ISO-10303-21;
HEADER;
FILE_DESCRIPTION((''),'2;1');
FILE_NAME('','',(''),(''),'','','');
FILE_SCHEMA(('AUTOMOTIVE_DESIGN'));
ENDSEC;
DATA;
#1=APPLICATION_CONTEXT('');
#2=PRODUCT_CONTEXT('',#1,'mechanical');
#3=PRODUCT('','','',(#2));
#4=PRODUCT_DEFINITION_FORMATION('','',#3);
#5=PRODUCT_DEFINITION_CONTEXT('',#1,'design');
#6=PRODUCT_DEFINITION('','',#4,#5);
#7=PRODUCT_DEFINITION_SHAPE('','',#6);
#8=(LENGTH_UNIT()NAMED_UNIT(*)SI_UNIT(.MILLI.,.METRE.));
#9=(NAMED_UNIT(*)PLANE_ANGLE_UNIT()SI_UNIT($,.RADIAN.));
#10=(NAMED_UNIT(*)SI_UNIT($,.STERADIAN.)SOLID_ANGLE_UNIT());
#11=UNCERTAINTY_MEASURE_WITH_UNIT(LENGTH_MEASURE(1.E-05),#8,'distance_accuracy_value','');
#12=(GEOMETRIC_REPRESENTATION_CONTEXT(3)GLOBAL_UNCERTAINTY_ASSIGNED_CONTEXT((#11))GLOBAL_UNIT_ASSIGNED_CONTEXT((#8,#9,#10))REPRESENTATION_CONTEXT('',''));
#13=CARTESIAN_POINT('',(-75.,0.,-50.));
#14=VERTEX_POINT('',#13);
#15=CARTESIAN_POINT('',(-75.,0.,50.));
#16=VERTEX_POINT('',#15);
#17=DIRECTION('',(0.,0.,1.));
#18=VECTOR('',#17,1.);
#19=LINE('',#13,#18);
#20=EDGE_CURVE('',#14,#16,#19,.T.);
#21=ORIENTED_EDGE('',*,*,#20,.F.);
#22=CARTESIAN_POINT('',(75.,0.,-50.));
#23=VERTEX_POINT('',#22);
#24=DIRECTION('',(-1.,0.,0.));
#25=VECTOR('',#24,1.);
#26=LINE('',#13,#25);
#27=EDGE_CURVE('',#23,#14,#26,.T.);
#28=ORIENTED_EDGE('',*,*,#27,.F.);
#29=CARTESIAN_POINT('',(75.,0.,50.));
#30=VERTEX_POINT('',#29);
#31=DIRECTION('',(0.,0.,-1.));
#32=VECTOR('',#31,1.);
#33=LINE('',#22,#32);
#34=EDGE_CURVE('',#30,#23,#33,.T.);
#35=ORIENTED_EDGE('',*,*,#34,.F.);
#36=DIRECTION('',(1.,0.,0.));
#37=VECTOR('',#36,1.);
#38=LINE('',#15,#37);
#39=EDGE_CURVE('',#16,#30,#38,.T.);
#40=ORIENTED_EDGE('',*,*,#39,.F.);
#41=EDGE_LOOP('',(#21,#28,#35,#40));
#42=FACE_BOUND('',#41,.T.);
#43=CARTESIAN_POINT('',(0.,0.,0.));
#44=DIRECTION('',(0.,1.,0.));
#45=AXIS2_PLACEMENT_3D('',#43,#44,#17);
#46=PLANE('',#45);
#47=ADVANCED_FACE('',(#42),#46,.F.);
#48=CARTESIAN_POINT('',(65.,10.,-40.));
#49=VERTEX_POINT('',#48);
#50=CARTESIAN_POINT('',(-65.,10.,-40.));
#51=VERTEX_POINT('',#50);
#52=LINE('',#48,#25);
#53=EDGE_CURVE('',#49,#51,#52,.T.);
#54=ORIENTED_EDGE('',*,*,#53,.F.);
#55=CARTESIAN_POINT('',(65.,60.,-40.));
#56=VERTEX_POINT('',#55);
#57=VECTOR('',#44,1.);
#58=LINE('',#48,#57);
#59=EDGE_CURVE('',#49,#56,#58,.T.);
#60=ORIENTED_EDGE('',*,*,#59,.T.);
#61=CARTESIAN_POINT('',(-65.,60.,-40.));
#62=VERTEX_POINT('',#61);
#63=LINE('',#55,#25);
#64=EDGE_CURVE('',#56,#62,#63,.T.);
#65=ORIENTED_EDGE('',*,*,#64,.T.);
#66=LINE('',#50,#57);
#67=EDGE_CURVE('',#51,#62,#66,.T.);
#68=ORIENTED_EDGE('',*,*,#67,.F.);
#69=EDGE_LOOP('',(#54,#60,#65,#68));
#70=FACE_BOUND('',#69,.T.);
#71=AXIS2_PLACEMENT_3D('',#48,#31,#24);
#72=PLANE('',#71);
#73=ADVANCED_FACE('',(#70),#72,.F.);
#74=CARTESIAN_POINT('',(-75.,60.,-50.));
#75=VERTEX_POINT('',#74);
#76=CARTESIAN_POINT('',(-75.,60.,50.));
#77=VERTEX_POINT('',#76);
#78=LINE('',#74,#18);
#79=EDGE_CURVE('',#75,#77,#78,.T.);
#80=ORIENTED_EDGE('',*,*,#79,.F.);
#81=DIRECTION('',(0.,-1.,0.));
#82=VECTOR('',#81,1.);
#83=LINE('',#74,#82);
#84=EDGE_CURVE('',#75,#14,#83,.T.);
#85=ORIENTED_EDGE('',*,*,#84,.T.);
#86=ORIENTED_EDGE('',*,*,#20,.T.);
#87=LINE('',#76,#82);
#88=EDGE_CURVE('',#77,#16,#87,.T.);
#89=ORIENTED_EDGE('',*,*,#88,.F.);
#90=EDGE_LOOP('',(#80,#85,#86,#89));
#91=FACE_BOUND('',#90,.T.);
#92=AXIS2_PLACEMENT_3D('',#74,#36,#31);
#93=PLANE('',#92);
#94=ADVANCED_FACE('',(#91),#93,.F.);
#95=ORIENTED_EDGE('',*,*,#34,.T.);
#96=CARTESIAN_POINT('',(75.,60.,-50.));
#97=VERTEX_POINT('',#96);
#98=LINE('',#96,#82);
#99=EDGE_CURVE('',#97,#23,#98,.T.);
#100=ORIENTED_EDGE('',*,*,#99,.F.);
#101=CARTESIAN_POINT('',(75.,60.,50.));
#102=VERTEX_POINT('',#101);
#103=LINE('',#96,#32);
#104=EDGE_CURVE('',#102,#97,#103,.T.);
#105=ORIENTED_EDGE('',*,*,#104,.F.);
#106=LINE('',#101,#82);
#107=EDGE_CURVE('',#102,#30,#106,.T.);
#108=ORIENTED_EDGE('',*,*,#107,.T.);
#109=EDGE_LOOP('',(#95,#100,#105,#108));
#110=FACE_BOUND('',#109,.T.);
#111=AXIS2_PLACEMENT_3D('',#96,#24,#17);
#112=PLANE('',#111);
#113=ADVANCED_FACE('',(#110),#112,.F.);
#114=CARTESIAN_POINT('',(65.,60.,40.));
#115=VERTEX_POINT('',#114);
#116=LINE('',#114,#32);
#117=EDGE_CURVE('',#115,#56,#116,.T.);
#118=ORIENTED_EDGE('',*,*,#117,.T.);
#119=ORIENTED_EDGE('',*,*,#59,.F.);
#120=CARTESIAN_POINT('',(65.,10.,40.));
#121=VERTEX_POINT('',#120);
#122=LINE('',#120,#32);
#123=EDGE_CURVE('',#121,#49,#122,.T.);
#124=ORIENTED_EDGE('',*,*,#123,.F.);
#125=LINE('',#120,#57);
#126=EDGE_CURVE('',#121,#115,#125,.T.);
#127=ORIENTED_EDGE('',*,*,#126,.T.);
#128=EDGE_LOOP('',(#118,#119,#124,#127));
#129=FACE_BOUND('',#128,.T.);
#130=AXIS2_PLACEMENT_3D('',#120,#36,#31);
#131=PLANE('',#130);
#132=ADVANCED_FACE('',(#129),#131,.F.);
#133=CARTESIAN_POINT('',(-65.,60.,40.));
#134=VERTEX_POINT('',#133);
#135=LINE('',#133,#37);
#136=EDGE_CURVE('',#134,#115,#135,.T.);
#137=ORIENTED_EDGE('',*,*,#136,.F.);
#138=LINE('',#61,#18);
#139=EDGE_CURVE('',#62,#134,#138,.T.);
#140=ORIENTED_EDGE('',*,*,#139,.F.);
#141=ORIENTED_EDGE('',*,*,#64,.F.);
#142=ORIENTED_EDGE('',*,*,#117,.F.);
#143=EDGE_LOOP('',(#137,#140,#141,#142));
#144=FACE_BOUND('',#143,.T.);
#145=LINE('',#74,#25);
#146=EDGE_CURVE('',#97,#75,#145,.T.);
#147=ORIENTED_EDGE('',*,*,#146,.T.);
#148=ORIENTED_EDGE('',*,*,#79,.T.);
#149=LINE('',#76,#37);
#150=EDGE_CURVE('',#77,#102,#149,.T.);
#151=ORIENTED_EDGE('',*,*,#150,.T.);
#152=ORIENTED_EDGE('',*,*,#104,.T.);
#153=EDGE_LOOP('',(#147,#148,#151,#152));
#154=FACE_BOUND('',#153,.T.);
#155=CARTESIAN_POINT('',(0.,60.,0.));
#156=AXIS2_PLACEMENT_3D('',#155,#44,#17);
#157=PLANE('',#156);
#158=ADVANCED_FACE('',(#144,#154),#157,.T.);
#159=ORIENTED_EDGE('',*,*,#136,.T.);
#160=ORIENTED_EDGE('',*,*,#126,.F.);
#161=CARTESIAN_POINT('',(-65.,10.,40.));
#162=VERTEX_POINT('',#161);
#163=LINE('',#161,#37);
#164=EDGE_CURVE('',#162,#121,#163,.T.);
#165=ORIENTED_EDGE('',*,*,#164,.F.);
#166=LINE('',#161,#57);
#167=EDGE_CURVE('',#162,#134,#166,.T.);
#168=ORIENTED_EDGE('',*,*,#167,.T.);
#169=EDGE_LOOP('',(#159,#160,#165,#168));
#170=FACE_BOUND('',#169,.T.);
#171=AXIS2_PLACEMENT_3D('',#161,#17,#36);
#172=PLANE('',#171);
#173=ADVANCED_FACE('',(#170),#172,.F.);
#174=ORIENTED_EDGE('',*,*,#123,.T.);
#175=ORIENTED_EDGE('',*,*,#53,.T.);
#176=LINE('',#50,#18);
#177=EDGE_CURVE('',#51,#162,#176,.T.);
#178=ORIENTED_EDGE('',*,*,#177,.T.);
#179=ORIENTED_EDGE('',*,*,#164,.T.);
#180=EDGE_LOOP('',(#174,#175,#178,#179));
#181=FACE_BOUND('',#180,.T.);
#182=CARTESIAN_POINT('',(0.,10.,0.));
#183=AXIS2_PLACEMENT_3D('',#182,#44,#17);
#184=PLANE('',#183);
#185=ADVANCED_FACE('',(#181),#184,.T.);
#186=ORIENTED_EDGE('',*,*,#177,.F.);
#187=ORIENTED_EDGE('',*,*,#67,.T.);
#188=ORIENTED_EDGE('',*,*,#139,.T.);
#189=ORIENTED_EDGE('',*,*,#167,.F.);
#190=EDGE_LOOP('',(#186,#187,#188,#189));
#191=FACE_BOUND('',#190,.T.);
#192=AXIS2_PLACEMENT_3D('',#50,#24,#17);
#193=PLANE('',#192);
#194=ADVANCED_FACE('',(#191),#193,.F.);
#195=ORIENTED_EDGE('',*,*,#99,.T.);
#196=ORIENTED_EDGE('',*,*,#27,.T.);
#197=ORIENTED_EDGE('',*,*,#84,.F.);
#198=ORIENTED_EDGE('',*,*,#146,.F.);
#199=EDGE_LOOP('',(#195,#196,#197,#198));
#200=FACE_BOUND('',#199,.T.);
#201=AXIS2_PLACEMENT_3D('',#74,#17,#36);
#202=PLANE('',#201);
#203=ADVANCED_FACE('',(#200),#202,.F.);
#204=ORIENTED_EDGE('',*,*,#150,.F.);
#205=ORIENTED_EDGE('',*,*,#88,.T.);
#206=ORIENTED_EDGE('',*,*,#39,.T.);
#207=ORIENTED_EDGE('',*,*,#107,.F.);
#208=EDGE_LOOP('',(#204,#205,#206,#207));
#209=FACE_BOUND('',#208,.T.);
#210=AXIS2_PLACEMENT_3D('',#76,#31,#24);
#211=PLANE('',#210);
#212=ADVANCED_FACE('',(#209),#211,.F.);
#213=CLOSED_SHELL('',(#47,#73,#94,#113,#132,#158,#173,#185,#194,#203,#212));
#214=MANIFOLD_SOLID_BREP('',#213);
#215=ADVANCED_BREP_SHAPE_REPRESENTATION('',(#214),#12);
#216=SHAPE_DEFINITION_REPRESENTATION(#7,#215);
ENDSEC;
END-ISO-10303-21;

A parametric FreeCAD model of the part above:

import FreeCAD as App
import Part
import Sketcher
Q = App.Units.Quantity

doc = App.newDocument("Part")
body = doc.addObject("PartDesign::Body", "Body")

sketch1 = body.newObject("Sketcher::SketchObject", "Sketch")
sketch1.AttachmentSupport = (doc.getObject("XZ_Plane"), [""])
sketch1.MapMode = "FlatFace"
sketch1.addGeometry(Part.LineSegment(App.Vector(-75, -50, 0), App.Vector(-75, 50, 0)), False)
sketch1.addGeometry(Part.LineSegment(App.Vector(-75, 50, 0), App.Vector(75, 50, 0)), False)
sketch1.addGeometry(Part.LineSegment(App.Vector(75, 50, 0), App.Vector(75, -50, 0)), False)
sketch1.addGeometry(Part.LineSegment(App.Vector(75, -50, 0), App.Vector(-75, -50, 0)), False)
sketch1.addConstraint(Sketcher.Constraint("Coincident", 0, 2, 1, 1))
sketch1.addConstraint(Sketcher.Constraint("Coincident", 1, 2, 2, 1))
sketch1.addConstraint(Sketcher.Constraint("Coincident", 2, 2, 3, 1))
sketch1.addConstraint(Sketcher.Constraint("Coincident", 3, 2, 0, 1))
sketch1.addConstraint(Sketcher.Constraint("Vertical", 0))
sketch1.addConstraint(Sketcher.Constraint("Horizontal", 1))
sketch1.addConstraint(Sketcher.Constraint("Vertical", 2))
sketch1.addConstraint(Sketcher.Constraint("Horizontal", 3))
sketch1.addConstraint(Sketcher.Constraint("Symmetric", 0, 2, 2, 2, -1, 1))
sketch1.addConstraint(Sketcher.Constraint("DistanceX", 1, 1, 1, 2, Q("150 mm")))
sketch1.addConstraint(Sketcher.Constraint("DistanceY", 0, 1, 0, 2, Q("100 mm")))
pad1 = body.newObject("PartDesign::Pad", "Pad")
pad1.Profile = sketch1
pad1.Length = 60
pad1.Reversed = True

sketch2 = body.newObject("Sketcher::SketchObject", "Sketch001")
sketch2.AttachmentSupport = (doc.getObject("XZ_Plane"), [""])
sketch2.MapMode = "FlatFace"
sketch2.AttachmentOffset = App.Placement(App.Vector(0, 0, -60), App.Rotation())
sketch2.addGeometry(Part.LineSegment(App.Vector(-65, -40, 0), App.Vector(-65, 40, 0)), False)
sketch2.addGeometry(Part.LineSegment(App.Vector(-65, 40, 0), App.Vector(65, 40, 0)), False)
sketch2.addGeometry(Part.LineSegment(App.Vector(65, 40, 0), App.Vector(65, -40, 0)), False)
sketch2.addGeometry(Part.LineSegment(App.Vector(65, -40, 0), App.Vector(-65, -40, 0)), False)
sketch2.addConstraint(Sketcher.Constraint("Coincident", 0, 2, 1, 1))
sketch2.addConstraint(Sketcher.Constraint("Coincident", 1, 2, 2, 1))
sketch2.addConstraint(Sketcher.Constraint("Coincident", 2, 2, 3, 1))
sketch2.addConstraint(Sketcher.Constraint("Coincident", 3, 2, 0, 1))
sketch2.addConstraint(Sketcher.Constraint("Vertical", 0))
sketch2.addConstraint(Sketcher.Constraint("Horizontal", 1))
sketch2.addConstraint(Sketcher.Constraint("Vertical", 2))
sketch2.addConstraint(Sketcher.Constraint("Horizontal", 3))
sketch2.addConstraint(Sketcher.Constraint("Symmetric", 0, 2, 2, 2, -1, 1))
sketch2.addConstraint(Sketcher.Constraint("DistanceX", 1, 1, 1, 2, Q("130 mm")))
sketch2.addConstraint(Sketcher.Constraint("DistanceY", 0, 1, 0, 2, Q("80 mm")))
pocket1 = body.newObject("PartDesign::Pocket", "Pocket")
pocket1.Profile = sketch2
pocket1.Length = 50
pocket1.Reversed = True

doc.recompute()
